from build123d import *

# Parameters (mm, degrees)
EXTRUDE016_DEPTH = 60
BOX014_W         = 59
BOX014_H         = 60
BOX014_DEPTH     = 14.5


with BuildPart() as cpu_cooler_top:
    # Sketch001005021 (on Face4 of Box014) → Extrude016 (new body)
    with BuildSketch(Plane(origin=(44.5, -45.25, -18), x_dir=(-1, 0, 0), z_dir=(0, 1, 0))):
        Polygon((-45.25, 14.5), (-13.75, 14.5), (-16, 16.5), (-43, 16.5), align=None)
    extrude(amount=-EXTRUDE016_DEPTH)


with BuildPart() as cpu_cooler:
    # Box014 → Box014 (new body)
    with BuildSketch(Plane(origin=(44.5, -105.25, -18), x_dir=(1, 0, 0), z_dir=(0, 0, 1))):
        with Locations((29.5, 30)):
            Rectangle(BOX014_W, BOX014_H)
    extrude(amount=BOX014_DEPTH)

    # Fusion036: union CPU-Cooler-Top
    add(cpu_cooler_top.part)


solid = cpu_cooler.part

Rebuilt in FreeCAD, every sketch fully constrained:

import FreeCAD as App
import Part
import Sketcher

V = App.Vector
Q = App.Units.Quantity

doc = App.newDocument("Part")
body = doc.addObject("PartDesign::Body", "Body")

sketch1 = body.newObject("Sketcher::SketchObject", "Sketch")
sketch1.AttachmentSupport = (doc.getObject("XZ_Plane"), [""])
sketch1.MapMode = "FlatFace"
sketch1.AttachmentOffset = App.Placement(V(0, 0, 45.25), App.Rotation())
sketch1.addGeometry([
    Part.LineSegment(V(89.8, -3.5, 0), V(58.2, -3.5, 0)),
    Part.LineSegment(V(58.2, -3.5, 0), V(60.5, -1.5, 0)),
    Part.LineSegment(V(60.5, -1.5, 0), V(87.5, -1.5, 0)),
    Part.LineSegment(V(87.5, -1.5, 0), V(89.8, -3.5, 0)),
], False)
sketch1.addConstraint([
    Sketcher.Constraint("Coincident", 0, 2, 1, 1),
    Sketcher.Constraint("Coincident", 1, 2, 2, 1),
    Sketcher.Constraint("Coincident", 2, 2, 3, 1),
    Sketcher.Constraint("Coincident", 3, 2, 0, 1),
    Sketcher.Constraint("Horizontal", 0),
    Sketcher.Constraint("Horizontal", 2),
    Sketcher.Constraint("Equal", 1, 3),
    Sketcher.Constraint("DistanceX", 2, 1, 2, 2, Q("27 mm")),
    Sketcher.Constraint("DistanceX", 0, 2, 0, 1, Q("31.5 mm")),
    Sketcher.Constraint("DistanceY", 0, 2, 1, 2, Q("2 mm")),
    Sketcher.Constraint("DistanceY", 0, 2, -1, 1, Q("3.5 mm")),
    Sketcher.Constraint("DistanceX", -1, 1, 1, 2, Q("60.5 mm")),
])
pad1 = body.newObject("PartDesign::Pad", "Pad")
pad1.Profile = sketch1
pad1.Length = 60
body2 = doc.addObject("PartDesign::Body", "Body001")

sketch2 = body2.newObject("Sketcher::SketchObject", "Sketch001")
sketch2.AttachmentSupport = (doc.getObject("XY_Plane001"), [""])
sketch2.MapMode = "FlatFace"
sketch2.AttachmentOffset = App.Placement(V(0, 0, -18), App.Rotation())
sketch2.addGeometry([
    Part.LineSegment(V(44, -45, 0), V(44, -105, 0)),
    Part.LineSegment(V(44, -105, 0), V(104, -105, 0)),
    Part.LineSegment(V(104, -105, 0), V(104, -45, 0)),
    Part.LineSegment(V(104, -45, 0), V(44, -45, 0)),
], False)
sketch2.addConstraint([
    Sketcher.Constraint("Coincident", 0, 2, 1, 1),
    Sketcher.Constraint("Coincident", 1, 2, 2, 1),
    Sketcher.Constraint("Coincident", 2, 2, 3, 1),
    Sketcher.Constraint("Coincident", 3, 2, 0, 1),
    Sketcher.Constraint("Vertical", 0),
    Sketcher.Constraint("Horizontal", 1),
    Sketcher.Constraint("Vertical", 2),
    Sketcher.Constraint("Horizontal", 3),
    Sketcher.Constraint("DistanceX", 1, 1, 1, 2, Q("59 mm")),
    Sketcher.Constraint("DistanceY", 0, 2, 0, 1, Q("60 mm")),
    Sketcher.Constraint("DistanceX", -1, 1, 0, 2, Q("44.5 mm")),
    Sketcher.Constraint("DistanceY", 0, 2, -1, 1, Q("105.25 mm")),
])
pad2 = body2.newObject("PartDesign::Pad", "Pad001")
pad2.Profile = sketch2
pad2.Length = 14.5
doc.recompute()

boolean = body2.newObject("PartDesign::Boolean", "Boolean")
boolean.Type = "Fuse"
boolean.addObjects([body])

doc.recompute()
